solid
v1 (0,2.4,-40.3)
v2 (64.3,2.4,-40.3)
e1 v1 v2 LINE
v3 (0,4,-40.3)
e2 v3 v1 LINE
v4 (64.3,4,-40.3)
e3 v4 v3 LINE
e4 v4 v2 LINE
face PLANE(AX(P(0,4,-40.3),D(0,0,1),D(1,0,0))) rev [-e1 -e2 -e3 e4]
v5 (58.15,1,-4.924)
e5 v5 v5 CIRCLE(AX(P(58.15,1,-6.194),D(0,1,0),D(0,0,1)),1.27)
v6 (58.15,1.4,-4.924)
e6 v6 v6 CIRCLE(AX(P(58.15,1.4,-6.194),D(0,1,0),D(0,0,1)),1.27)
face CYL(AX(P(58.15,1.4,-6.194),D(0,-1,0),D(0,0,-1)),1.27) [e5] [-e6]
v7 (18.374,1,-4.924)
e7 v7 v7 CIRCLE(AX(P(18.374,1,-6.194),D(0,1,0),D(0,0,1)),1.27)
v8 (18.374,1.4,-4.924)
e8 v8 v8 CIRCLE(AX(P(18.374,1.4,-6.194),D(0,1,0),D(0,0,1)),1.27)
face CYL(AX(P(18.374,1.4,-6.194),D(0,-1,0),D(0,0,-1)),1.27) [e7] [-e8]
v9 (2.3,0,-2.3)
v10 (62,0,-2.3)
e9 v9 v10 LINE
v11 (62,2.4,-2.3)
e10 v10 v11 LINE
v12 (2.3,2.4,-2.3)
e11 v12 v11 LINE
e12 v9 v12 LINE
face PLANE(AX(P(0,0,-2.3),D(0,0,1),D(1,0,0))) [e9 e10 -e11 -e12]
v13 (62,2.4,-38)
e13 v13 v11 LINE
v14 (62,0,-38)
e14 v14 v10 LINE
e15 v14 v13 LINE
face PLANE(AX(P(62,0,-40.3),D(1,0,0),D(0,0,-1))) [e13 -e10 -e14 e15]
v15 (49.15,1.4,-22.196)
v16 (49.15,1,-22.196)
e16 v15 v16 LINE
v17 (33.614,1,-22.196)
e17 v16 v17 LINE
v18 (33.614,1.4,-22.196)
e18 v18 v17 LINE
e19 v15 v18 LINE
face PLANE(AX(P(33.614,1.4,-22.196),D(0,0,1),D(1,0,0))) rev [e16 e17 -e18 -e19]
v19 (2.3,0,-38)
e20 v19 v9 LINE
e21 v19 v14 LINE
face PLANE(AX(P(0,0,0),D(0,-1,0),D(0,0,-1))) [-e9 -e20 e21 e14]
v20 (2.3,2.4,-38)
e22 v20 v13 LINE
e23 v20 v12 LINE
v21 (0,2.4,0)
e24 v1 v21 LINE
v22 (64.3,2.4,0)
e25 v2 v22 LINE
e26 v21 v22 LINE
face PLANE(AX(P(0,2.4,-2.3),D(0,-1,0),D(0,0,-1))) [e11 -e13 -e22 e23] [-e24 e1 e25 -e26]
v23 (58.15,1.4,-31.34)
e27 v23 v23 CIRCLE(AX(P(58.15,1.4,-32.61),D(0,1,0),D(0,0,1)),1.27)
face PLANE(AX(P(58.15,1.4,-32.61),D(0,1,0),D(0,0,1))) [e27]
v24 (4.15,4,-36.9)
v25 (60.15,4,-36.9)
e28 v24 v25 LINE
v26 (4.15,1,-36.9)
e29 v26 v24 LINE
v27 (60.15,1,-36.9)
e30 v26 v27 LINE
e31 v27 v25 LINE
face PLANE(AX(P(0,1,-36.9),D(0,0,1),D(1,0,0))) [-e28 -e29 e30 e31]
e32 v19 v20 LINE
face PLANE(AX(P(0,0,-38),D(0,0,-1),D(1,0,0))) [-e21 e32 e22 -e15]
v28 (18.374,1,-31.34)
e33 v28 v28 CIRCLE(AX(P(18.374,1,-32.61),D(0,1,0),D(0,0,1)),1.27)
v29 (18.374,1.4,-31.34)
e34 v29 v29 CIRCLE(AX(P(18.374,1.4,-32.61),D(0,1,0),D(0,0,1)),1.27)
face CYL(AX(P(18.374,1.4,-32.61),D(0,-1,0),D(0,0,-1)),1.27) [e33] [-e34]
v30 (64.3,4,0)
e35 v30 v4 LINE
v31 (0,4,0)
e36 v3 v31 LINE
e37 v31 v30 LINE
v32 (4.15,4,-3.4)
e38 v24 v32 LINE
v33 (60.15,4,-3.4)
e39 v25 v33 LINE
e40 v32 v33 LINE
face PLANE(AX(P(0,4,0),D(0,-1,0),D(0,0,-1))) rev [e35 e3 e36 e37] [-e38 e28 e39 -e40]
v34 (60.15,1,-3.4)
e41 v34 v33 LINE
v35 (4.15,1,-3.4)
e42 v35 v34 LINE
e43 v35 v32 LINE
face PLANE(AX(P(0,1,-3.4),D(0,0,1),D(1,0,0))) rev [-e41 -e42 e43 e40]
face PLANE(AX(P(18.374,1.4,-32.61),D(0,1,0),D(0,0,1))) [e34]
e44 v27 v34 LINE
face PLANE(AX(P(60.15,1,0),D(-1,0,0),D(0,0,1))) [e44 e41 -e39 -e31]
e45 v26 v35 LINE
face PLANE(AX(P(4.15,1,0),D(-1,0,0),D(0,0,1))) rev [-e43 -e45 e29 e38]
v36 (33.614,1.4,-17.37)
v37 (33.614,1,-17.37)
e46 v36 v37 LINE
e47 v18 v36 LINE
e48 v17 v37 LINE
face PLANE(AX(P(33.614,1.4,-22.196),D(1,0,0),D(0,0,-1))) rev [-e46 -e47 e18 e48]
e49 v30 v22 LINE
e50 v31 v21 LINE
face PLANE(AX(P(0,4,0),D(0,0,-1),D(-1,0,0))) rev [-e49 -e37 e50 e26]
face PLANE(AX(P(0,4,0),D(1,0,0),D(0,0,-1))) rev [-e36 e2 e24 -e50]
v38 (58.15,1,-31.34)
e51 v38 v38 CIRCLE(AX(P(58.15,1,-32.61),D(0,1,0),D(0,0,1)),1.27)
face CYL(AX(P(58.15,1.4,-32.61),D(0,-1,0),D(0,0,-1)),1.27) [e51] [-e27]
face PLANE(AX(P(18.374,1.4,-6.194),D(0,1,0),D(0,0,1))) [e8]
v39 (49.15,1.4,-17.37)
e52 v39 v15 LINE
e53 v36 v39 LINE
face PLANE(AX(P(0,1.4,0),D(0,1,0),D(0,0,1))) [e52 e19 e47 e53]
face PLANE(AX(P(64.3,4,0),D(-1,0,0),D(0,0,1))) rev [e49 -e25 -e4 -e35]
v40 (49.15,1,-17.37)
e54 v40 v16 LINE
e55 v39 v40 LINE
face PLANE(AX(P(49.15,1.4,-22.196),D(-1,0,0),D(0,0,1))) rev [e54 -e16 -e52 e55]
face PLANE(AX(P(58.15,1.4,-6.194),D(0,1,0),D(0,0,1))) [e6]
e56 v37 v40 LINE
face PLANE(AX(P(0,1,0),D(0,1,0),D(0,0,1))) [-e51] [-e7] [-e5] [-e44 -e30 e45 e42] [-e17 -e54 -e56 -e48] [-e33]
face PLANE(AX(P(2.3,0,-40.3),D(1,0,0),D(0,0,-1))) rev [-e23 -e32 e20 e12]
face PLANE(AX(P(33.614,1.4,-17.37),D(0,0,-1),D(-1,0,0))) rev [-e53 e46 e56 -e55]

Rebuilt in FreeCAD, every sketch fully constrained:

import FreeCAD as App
import Part
import Sketcher
from FreeCAD import Vector
Q = App.Units.Quantity


def add_polygon(sketch, points):
    """Adds a closed chain of lines whose ends are joined by coincident constraints."""
    first, n = sketch.GeometryCount, len(points)
    for a, b in zip(points, points[1:] + points[:1]):
        sketch.addGeometry(Part.LineSegment(App.Vector(*a, 0), App.Vector(*b, 0)), False)
    for i in range(n):
        sketch.addConstraint(Sketcher.Constraint("Coincident", first + i, 2, first + (i + 1) % n, 1))

doc = App.newDocument("Part")
body = doc.addObject("PartDesign::Body", "Body")

sketch1 = body.newObject("Sketcher::SketchObject", "Sketch")
sketch1.AttachmentSupport = (doc.getObject("XZ_Plane"), [""])
sketch1.MapMode = "FlatFace"
add_polygon(sketch1, [(0, -40), (0, 0), (64, 0), (64, -40)])
sketch1.addConstraint([
    Sketcher.Constraint("Vertical", 0),
    Sketcher.Constraint("Horizontal", 1),
    Sketcher.Constraint("Vertical", 2),
    Sketcher.Constraint("Horizontal", 3),
    Sketcher.Constraint("Coincident", 0, 2, -1, 1),
    Sketcher.Constraint("DistanceX", 1, 1, 1, 2, Q("64.3 mm")),
    Sketcher.Constraint("DistanceY", 0, 1, 0, 2, Q("40.3 mm")),
])
pad1 = body.newObject("PartDesign::Pad", "Pad")
pad1.Profile = sketch1
pad1.Length = 4
pad1.Reversed = True

sketch2 = body.newObject("Sketcher::SketchObject", "Sketch001")
sketch2.AttachmentSupport = (doc.getObject("XZ_Plane"), [""])
sketch2.MapMode = "FlatFace"
sketch2.AttachmentOffset = App.Placement(Vector(0, 0, -4), App.Rotation())
add_polygon(sketch2, [(4, -37), (4, -3), (60, -3), (60, -37)])
sketch2.addConstraint([
    Sketcher.Constraint("Vertical", 0),
    Sketcher.Constraint("Horizontal", 1),
    Sketcher.Constraint("Vertical", 2),
    Sketcher.Constraint("Horizontal", 3),
    Sketcher.Constraint("DistanceX", 1, 1, 1, 2, Q("56 mm")),
    Sketcher.Constraint("DistanceY", 0, 1, 0, 2, Q("33.5 mm")),
    Sketcher.Constraint("DistanceY", 0, 2, -1, 1, Q("3.4 mm")),
    Sketcher.Constraint("DistanceX", -1, 1, 0, 2, Q("4.15 mm")),
])
pocket1 = body.newObject("PartDesign::Pocket", "Pocket")
pocket1.Profile = sketch2
pocket1.Length = 3
pocket1.Reversed = True

sketch3 = body.newObject("Sketcher::SketchObject", "Sketch002")
sketch3.AttachmentSupport = (doc.getObject("XZ_Plane"), [""])
sketch3.MapMode = "FlatFace"
sketch3.AttachmentOffset = App.Placement(Vector(0, 0, -1), App.Rotation())
sketch3.addGeometry(Part.Circle(Vector(18.4, -32.6, 0), Vector(0, 0, 1), 1.3), False)
sketch3.addGeometry(Part.Circle(Vector(18.4, -6.2, 0), Vector(0, 0, 1), 1.3), False)
sketch3.addGeometry(Part.Circle(Vector(58.1, -6.2, 0), Vector(0, 0, 1), 1.3), False)
sketch3.addGeometry(Part.Circle(Vector(58.1, -32.6, 0), Vector(0, 0, 1), 1.3), False)
add_polygon(sketch3, [(33.6, -22.2), (33.6, -17.4), (49.1, -17.4), (49.1, -22.2)])
sketch3.addConstraint([
    Sketcher.Constraint("Vertical", 4),
    Sketcher.Constraint("Horizontal", 5),
    Sketcher.Constraint("Vertical", 6),
    Sketcher.Constraint("Horizontal", 7),
    Sketcher.Constraint("Equal", 0, 1),
    Sketcher.Constraint("Equal", 1, 2),
    Sketcher.Constraint("Equal", 2, 3),
    Sketcher.Constraint("Horizontal", 1, 3, 2, 3),
    Sketcher.Constraint("Horizontal", 0, 3, 3, 3),
    Sketcher.Constraint("Vertical", 0, 3, 1, 3),
    Sketcher.Constraint("Vertical", 2, 3, 3, 3),
    Sketcher.Constraint("Diameter", 0, Q("2.54 mm")),
    Sketcher.Constraint("DistanceX", 5, 2, 2, 3, Q("9 mm")),
    Sketcher.Constraint("DistanceX", 5, 1, 5, 2, Q("15.536 mm")),
    Sketcher.Constraint("DistanceY", 4, 1, 4, 2, Q("4.826 mm")),
    Sketcher.Constraint("DistanceY", 0, 3, -1, 1, Q("32.61 mm")),
    Sketcher.Constraint("DistanceX", -1, 1, 2, 3, Q("58.15 mm")),
    Sketcher.Constraint("DistanceY", 4, 2, -1, 1, Q("17.37 mm")),
    Sketcher.Constraint("DistanceX", 1, 3, 4, 2, Q("15.24 mm")),
    Sketcher.Constraint("DistanceY", 1, 3, -1, 1, Q("6.194 mm")),
])
pad2 = body.newObject("PartDesign::Pad", "Pad001")
pad2.Profile = sketch3
pad2.Length = 0.4
pad2.Reversed = True

sketch4 = body.newObject("Sketcher::SketchObject", "Sketch003")
sketch4.AttachmentSupport = (doc.getObject("XY_Plane"), [""])
sketch4.MapMode = "FlatFace"
add_polygon(sketch4, [(2.3, 2.4), (2.3, 0), (62, 0), (62, 2.4)])
sketch4.addConstraint([
    Sketcher.Constraint("Vertical", 0),
    Sketcher.Constraint("Horizontal", 1),
    Sketcher.Constraint("Vertical", 2),
    Sketcher.Constraint("Horizontal", 3),
    Sketcher.Constraint("PointOnObject", 0, 2, -1),
    Sketcher.Constraint("DistanceX", 1, 1, 1, 2, Q("59.7 mm")),
    Sketcher.Constraint("DistanceY", 0, 2, 0, 1, Q("2.4 mm")),
    Sketcher.Constraint("DistanceX", -1, 1, 1, 2, Q("62 mm")),
])
pocket2 = body.newObject("PartDesign::Pocket", "Pocket001")
pocket2.Profile = sketch4
pocket2.Length = 2.3

sketch5 = body.newObject("Sketcher::SketchObject", "Sketch004")
sketch5.AttachmentSupport = (doc.getObject("XY_Plane"), [""])
sketch5.MapMode = "FlatFace"
add_polygon(sketch5, [(0, 2.4), (0, 0), (2.3, 0), (2.3, 2.4)])
add_polygon(sketch5, [(62, 2.4), (62, 0), (64.3, 0), (64.3, 2.4)])
sketch5.addConstraint([
    Sketcher.Constraint("Vertical", 0),
    Sketcher.Constraint("Horizontal", 1),
    Sketcher.Constraint("Vertical", 2),
    Sketcher.Constraint("Horizontal", 3),
    Sketcher.Constraint("Vertical", 4),
    Sketcher.Constraint("Horizontal", 5),
    Sketcher.Constraint("Vertical", 6),
    Sketcher.Constraint("Horizontal", 7),
    Sketcher.Constraint("Coincident", 0, 2, -1, 1),
    Sketcher.Constraint("PointOnObject", 4, 2, -1),
    Sketcher.Constraint("Horizontal", 3, 2, 6, 2),
    Sketcher.Constraint("Equal", 3, 5),
    Sketcher.Constraint("DistanceX", 1, 1, 1, 2, Q("2.3 mm")),
    Sketcher.Constraint("DistanceY", 0, 2, 0, 1, Q("2.4 mm")),
    Sketcher.Constraint("DistanceX", -1, 1, 4, 2, Q("62 mm")),
])
pocket3 = body.newObject("PartDesign::Pocket", "Pocket002")
pocket3.Profile = sketch5
pocket3.Type = "ThroughAll"
doc.recompute()

datumplane = body.newObject("PartDesign::Plane", "DatumPlane")
datumplane.AttachmentSupport = (doc.getObject("XY_Plane"), [""])
datumplane.MapMode = "FlatFace"
datumplane.AttachmentOffset = App.Placement(Vector(0, 0, -20.15), App.Rotation())
mirrored = body.newObject("PartDesign::Mirrored", "Mirrored")
mirrored.Originals = [pocket2]
mirrored.MirrorPlane = (datumplane, [""])
body.Tip = mirrored

doc.recompute()
